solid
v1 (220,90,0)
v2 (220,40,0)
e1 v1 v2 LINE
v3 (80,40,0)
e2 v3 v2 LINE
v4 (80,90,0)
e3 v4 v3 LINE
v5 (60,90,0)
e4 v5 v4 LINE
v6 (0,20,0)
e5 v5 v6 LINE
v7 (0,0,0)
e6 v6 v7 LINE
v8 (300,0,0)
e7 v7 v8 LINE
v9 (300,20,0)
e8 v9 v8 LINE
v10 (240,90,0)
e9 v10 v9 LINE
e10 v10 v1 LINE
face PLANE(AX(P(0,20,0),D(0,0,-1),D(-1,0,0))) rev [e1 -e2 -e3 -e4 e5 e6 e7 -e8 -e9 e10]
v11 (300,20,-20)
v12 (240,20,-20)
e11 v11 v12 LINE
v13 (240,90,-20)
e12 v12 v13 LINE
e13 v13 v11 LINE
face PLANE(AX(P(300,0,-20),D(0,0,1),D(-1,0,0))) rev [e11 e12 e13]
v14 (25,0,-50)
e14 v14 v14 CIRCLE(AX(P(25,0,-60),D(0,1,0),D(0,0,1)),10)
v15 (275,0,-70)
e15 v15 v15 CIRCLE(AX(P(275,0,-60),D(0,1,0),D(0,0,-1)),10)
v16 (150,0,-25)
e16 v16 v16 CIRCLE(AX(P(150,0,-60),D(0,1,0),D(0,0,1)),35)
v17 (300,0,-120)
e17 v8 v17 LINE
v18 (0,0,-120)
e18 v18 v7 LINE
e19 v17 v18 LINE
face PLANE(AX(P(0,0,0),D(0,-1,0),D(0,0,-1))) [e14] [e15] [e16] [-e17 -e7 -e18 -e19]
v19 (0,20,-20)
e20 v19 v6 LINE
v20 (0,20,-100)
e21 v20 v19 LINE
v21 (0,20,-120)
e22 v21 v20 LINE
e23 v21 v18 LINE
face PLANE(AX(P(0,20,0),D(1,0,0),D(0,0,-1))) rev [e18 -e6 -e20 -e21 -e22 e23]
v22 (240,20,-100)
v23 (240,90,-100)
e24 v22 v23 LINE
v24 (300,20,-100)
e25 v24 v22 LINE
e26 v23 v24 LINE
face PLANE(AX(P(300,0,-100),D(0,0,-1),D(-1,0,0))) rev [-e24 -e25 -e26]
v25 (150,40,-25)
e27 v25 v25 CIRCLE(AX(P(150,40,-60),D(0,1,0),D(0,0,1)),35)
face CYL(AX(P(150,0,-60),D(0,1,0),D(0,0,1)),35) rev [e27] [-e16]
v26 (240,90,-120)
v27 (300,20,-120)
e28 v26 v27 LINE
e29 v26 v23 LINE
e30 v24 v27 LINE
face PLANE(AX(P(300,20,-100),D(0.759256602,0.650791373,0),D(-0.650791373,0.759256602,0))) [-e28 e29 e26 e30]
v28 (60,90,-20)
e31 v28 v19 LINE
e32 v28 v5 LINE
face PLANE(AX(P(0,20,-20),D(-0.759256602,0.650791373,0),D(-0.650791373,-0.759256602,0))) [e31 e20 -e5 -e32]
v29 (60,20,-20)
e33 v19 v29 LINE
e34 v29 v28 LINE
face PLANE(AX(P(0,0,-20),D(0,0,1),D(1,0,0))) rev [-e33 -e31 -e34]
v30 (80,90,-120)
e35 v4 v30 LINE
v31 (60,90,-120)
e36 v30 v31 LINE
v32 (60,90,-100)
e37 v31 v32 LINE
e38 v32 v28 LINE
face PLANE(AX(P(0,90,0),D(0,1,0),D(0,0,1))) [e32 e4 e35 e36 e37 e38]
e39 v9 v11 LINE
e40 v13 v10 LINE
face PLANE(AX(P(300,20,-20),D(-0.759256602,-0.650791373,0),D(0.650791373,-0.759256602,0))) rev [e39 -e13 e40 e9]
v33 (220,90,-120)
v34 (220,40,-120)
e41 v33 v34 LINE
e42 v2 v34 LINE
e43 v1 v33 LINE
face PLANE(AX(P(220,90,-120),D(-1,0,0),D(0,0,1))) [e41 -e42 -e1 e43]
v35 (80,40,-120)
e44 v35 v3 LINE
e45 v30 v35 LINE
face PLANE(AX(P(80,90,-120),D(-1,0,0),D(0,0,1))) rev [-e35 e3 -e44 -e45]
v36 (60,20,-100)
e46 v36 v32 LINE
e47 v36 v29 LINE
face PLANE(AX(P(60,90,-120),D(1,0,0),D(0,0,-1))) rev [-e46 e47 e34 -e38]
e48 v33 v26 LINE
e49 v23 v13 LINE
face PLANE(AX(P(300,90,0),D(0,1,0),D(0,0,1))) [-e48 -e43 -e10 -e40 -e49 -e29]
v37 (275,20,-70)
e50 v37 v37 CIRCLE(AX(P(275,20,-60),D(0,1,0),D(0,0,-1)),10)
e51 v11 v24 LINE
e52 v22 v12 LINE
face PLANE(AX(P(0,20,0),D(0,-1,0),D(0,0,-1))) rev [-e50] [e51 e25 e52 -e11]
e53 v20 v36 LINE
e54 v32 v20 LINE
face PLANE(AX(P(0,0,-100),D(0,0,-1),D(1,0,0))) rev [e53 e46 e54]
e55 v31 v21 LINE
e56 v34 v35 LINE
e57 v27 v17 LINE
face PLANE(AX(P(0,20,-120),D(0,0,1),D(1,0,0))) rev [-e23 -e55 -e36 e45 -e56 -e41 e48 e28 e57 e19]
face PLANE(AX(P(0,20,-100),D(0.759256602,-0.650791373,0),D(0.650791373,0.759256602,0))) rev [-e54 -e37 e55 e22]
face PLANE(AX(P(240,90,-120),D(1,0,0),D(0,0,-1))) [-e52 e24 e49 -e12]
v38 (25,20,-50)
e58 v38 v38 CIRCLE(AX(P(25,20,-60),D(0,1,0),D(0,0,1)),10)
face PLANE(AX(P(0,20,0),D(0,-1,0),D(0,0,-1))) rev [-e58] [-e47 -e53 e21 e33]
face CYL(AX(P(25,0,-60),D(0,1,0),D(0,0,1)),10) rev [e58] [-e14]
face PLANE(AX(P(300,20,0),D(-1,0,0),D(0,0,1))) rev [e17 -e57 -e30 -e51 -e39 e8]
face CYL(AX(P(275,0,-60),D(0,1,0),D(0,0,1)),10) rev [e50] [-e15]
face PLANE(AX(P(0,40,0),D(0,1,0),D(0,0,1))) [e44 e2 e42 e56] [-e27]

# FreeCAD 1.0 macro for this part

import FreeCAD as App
import Part
import Sketcher

V = App.Vector
Q = App.Units.Quantity

doc = App.newDocument("Part")
body = doc.addObject("PartDesign::Body", "Body")

# Sketch on XZ plane
sketch1 = body.newObject("Sketcher::SketchObject", "Sketch")
sketch1.AttachmentSupport = (doc.getObject("XZ_Plane"), [""])
sketch1.MapMode = "FlatFace"
sketch1.addGeometry(Part.LineSegment(V(0, -120, 0), V(0, 0, 0)), False)
sketch1.addGeometry(Part.LineSegment(V(0, 0, 0), V(300, 0, 0)), False)
sketch1.addGeometry(Part.LineSegment(V(300, 0, 0), V(300, -120, 0)), False)
sketch1.addGeometry(Part.LineSegment(V(300, -120, 0), V(0, -120, 0)), False)
sketch1.addConstraint(Sketcher.Constraint("Coincident", 0, 2, 1, 1))
sketch1.addConstraint(Sketcher.Constraint("Coincident", 1, 2, 2, 1))
sketch1.addConstraint(Sketcher.Constraint("Coincident", 2, 2, 3, 1))
sketch1.addConstraint(Sketcher.Constraint("Coincident", 3, 2, 0, 1))
sketch1.addConstraint(Sketcher.Constraint("Vertical", 0))
sketch1.addConstraint(Sketcher.Constraint("Horizontal", 1))
sketch1.addConstraint(Sketcher.Constraint("Vertical", 2))
sketch1.addConstraint(Sketcher.Constraint("Horizontal", 3))
sketch1.addConstraint(Sketcher.Constraint("Coincident", 0, 2, -1, 1))
sketch1.addConstraint(Sketcher.Constraint("DistanceX", 1, 1, 1, 2, Q("300 mm")))
sketch1.addConstraint(Sketcher.Constraint("DistanceY", 0, 1, 0, 2, Q("120 mm")))
pad1 = body.newObject("PartDesign::Pad", "Pad")
pad1.Profile = sketch1
pad1.Length = 20
pad1.Reversed = True

# Sketch on XZ plane
sketch2 = body.newObject("Sketcher::SketchObject", "Sketch001")
sketch2.AttachmentSupport = (doc.getObject("XZ_Plane"), [""])
sketch2.MapMode = "FlatFace"
sketch2.AttachmentOffset = App.Placement(V(0, 0, -20), App.Rotation())
sketch2.addGeometry(Part.LineSegment(V(60, -120, 0), V(60, 0, 0)), False)
sketch2.addGeometry(Part.LineSegment(V(60, 0, 0), V(80, 0, 0)), False)
sketch2.addGeometry(Part.LineSegment(V(80, 0, 0), V(80, -120, 0)), False)
sketch2.addGeometry(Part.LineSegment(V(80, -120, 0), V(60, -120, 0)), False)
sketch2.addConstraint(Sketcher.Constraint("Coincident", 0, 2, 1, 1))
sketch2.addConstraint(Sketcher.Constraint("Coincident", 1, 2, 2, 1))
sketch2.addConstraint(Sketcher.Constraint("Coincident", 2, 2, 3, 1))
sketch2.addConstraint(Sketcher.Constraint("Coincident", 3, 2, 0, 1))
sketch2.addConstraint(Sketcher.Constraint("Vertical", 0))
sketch2.addConstraint(Sketcher.Constraint("Horizontal", 1))
sketch2.addConstraint(Sketcher.Constraint("Vertical", 2))
sketch2.addConstraint(Sketcher.Constraint("Horizontal", 3))
sketch2.addConstraint(Sketcher.Constraint("PointOnObject", 0, 2, -1))
sketch2.addConstraint(Sketcher.Constraint("DistanceX", 1, 1, 1, 2, Q("20 mm")))
sketch2.addConstraint(Sketcher.Constraint("DistanceY", 0, 1, 0, 2, Q("120 mm")))
sketch2.addConstraint(Sketcher.Constraint("DistanceX", -1, 1, 0, 2, Q("60 mm")))
pad2 = body.newObject("PartDesign::Pad", "Pad001")
pad2.Profile = sketch2
pad2.Length = 70
pad2.Reversed = True
doc.recompute()

datumplane = body.newObject("PartDesign::Plane", "DatumPlane")
datumplane.AttachmentSupport = (doc.getObject("YZ_Plane"), [""])
datumplane.MapMode = "FlatFace"
datumplane.AttachmentOffset = App.Placement(V(0, 0, 150), App.Rotation())
mirrored = body.newObject("PartDesign::Mirrored", "Mirrored")
mirrored.Originals = [pad2]
mirrored.MirrorPlane = (datumplane, [""])
body.Tip = mirrored

# Sketch on XZ plane
sketch3 = body.newObject("Sketcher::SketchObject", "Sketch002")
sketch3.AttachmentSupport = (doc.getObject("XZ_Plane"), [""])
sketch3.MapMode = "FlatFace"
sketch3.AttachmentOffset = App.Placement(V(0, 0, -20), App.Rotation())
sketch3.addGeometry(Part.LineSegment(V(80, -120, 0), V(80, 0, 0)), False)
sketch3.addGeometry(Part.LineSegment(V(80, 0, 0), V(220, 0, 0)), False)
sketch3.addGeometry(Part.LineSegment(V(220, 0, 0), V(220, -120, 0)), False)
sketch3.addGeometry(Part.LineSegment(V(220, -120, 0), V(80, -120, 0)), False)
sketch3.addConstraint(Sketcher.Constraint("Coincident", 0, 2, 1, 1))
sketch3.addConstraint(Sketcher.Constraint("Coincident", 1, 2, 2, 1))
sketch3.addConstraint(Sketcher.Constraint("Coincident", 2, 2, 3, 1))
sketch3.addConstraint(Sketcher.Constraint("Coincident", 3, 2, 0, 1))
sketch3.addConstraint(Sketcher.Constraint("Vertical", 0))
sketch3.addConstraint(Sketcher.Constraint("Horizontal", 1))
sketch3.addConstraint(Sketcher.Constraint("Vertical", 2))
sketch3.addConstraint(Sketcher.Constraint("Horizontal", 3))
sketch3.addConstraint(Sketcher.Constraint("PointOnObject", 0, 2, -1))
sketch3.addConstraint(Sketcher.Constraint("DistanceX", 1, 1, 1, 2, Q("140 mm")))
sketch3.addConstraint(Sketcher.Constraint("DistanceY", 0, 1, 0, 2, Q("120 mm")))
sketch3.addConstraint(Sketcher.Constraint("DistanceX", -1, 1, 0, 2, Q("80 mm")))
pad3 = body.newObject("PartDesign::Pad", "Pad002")
pad3.Profile = sketch3
pad3.Length = 20
pad3.Reversed = True

# Sketch on XY plane
sketch4 = body.newObject("Sketcher::SketchObject", "Sketch003")
sketch4.AttachmentSupport = (doc.getObject("XY_Plane"), [""])
sketch4.MapMode = "FlatFace"
sketch4.addGeometry(Part.LineSegment(V(60, 90, 0), V(0, 20, 0)), False)
sketch4.addGeometry(Part.LineSegment(V(0, 20, 0), V(60, 20, 0)), False)
sketch4.addGeometry(Part.LineSegment(V(60, 20, 0), V(60, 90, 0)), False)
sketch4.addConstraint(Sketcher.Constraint("Coincident", 0, 2, 1, 1))
sketch4.addConstraint(Sketcher.Constraint("Coincident", 1, 2, 2, 1))
sketch4.addConstraint(Sketcher.Constraint("Coincident", 2, 2, 0, 1))
sketch4.addConstraint(Sketcher.Constraint("Horizontal", 1))
sketch4.addConstraint(Sketcher.Constraint("Vertical", 2))
sketch4.addConstraint(Sketcher.Constraint("PointOnObject", 0, 2, -2))
sketch4.addConstraint(Sketcher.Constraint("DistanceX", 1, 1, 1, 2, Q("60 mm")))
sketch4.addConstraint(Sketcher.Constraint("DistanceY", 2, 1, 2, 2, Q("70 mm")))
sketch4.addConstraint(Sketcher.Constraint("DistanceY", -1, 1, 0, 2, Q("20 mm")))
pad4 = body.newObject("PartDesign::Pad", "Pad003")
pad4.Profile = sketch4
pad4.Length = 20
pad4.Reversed = True
doc.recompute()

datumplane2 = body.newObject("PartDesign::Plane", "DatumPlane001")
datumplane2.AttachmentSupport = (doc.getObject("XY_Plane"), [""])
datumplane2.MapMode = "FlatFace"
datumplane2.AttachmentOffset = App.Placement(V(0, 0, -60), App.Rotation())
mirrored2 = body.newObject("PartDesign::Mirrored", "Mirrored001")
mirrored2.Originals = [pad4]
mirrored2.MirrorPlane = (datumplane2, [""])
body.Tip = mirrored2
doc.recompute()

datumplane3 = body.newObject("PartDesign::Plane", "DatumPlane002")
datumplane3.AttachmentSupport = (doc.getObject("YZ_Plane"), [""])
datumplane3.MapMode = "FlatFace"
datumplane3.AttachmentOffset = App.Placement(V(0, 0, 150), App.Rotation())
mirrored3 = body.newObject("PartDesign::Mirrored", "Mirrored002")
mirrored3.Originals = [pad4]
mirrored3.MirrorPlane = (datumplane3, [""])
body.Tip = mirrored3

# Sketch on XY plane
sketch5 = body.newObject("Sketcher::SketchObject", "Sketch004")
sketch5.AttachmentSupport = (doc.getObject("XY_Plane"), [""])
sketch5.MapMode = "FlatFace"
sketch5.AttachmentOffset = App.Placement(V(0, 0, -120), App.Rotation())
sketch5.addGeometry(Part.LineSegment(V(240, 90, 0), V(300, 20, 0)), False)
sketch5.addGeometry(Part.LineSegment(V(300, 20, 0), V(240, 20, 0)), False)
sketch5.addGeometry(Part.LineSegment(V(240, 20, 0), V(240, 90, 0)), False)
sketch5.addConstraint(Sketcher.Constraint("Coincident", 0, 2, 1, 1))
sketch5.addConstraint(Sketcher.Constraint("Coincident", 1, 2, 2, 1))
sketch5.addConstraint(Sketcher.Constraint("Coincident", 2, 2, 0, 1))
sketch5.addConstraint(Sketcher.Constraint("Horizontal", 1))
sketch5.addConstraint(Sketcher.Constraint("Vertical", 2))
sketch5.addConstraint(Sketcher.Constraint("DistanceX", 1, 2, 1, 1, Q("60 mm")))
sketch5.addConstraint(Sketcher.Constraint("DistanceY", 2, 1, 2, 2, Q("70 mm")))
sketch5.addConstraint(Sketcher.Constraint("DistanceX", -1, 1, 0, 2, Q("300 mm")))
sketch5.addConstraint(Sketcher.Constraint("DistanceY", -1, 1, 0, 2, Q("20 mm")))
pad5 = body.newObject("PartDesign::Pad", "Pad004")
pad5.Profile = sketch5
pad5.Length = 20

# Sketch on XZ plane
sketch6 = body.newObject("Sketcher::SketchObject", "Sketch005")
sketch6.AttachmentSupport = (doc.getObject("XZ_Plane"), [""])
sketch6.MapMode = "FlatFace"
sketch6.AttachmentOffset = App.Placement(V(0, 0, -40), App.Rotation())
sketch6.addGeometry(Part.Circle(V(150, -60, 0), V(0, 0, 1), 35), False)
sketch6.addConstraint(Sketcher.Constraint("Diameter", 0, Q("70 mm")))
sketch6.addConstraint(Sketcher.Constraint("DistanceX", -1, 1, 0, 3, Q("150 mm")))
sketch6.addConstraint(Sketcher.Constraint("DistanceY", 0, 3, -1, 1, Q("60 mm")))
pocket1 = body.newObject("PartDesign::Pocket", "Pocket")
pocket1.Profile = sketch6
pocket1.Type = "ThroughAll"
pocket1.Midplane = True

# Sketch on XZ plane
sketch7 = body.newObject("Sketcher::SketchObject", "Sketch006")
sketch7.AttachmentSupport = (doc.getObject("XZ_Plane"), [""])
sketch7.MapMode = "FlatFace"
sketch7.AttachmentOffset = App.Placement(V(0, 0, -20), App.Rotation())
sketch7.addGeometry(Part.Circle(V(25, -60, 0), V(0, 0, 1), 10), False)
sketch7.addGeometry(Part.Circle(V(275, -60, 0), V(0, 0, 1), 10), False)
sketch7.addConstraint(Sketcher.Constraint("Equal", 0, 1))
sketch7.addConstraint(Sketcher.Constraint("Horizontal", 0, 3, 1, 3))
sketch7.addConstraint(Sketcher.Constraint("Diameter", 0, Q("20 mm")))
sketch7.addConstraint(Sketcher.Constraint("DistanceX", -1, 1, 0, 3, Q("25 mm")))
sketch7.addConstraint(Sketcher.Constraint("DistanceY", 0, 3, -1, 1, Q("60 mm")))
sketch7.addConstraint(Sketcher.Constraint("DistanceX", -1, 1, 1, 3, Q("275 mm")))
pocket2 = body.newObject("PartDesign::Pocket", "Pocket001")
pocket2.Profile = sketch7
pocket2.Length = 20
pocket2.Reversed = True

doc.recompute()
